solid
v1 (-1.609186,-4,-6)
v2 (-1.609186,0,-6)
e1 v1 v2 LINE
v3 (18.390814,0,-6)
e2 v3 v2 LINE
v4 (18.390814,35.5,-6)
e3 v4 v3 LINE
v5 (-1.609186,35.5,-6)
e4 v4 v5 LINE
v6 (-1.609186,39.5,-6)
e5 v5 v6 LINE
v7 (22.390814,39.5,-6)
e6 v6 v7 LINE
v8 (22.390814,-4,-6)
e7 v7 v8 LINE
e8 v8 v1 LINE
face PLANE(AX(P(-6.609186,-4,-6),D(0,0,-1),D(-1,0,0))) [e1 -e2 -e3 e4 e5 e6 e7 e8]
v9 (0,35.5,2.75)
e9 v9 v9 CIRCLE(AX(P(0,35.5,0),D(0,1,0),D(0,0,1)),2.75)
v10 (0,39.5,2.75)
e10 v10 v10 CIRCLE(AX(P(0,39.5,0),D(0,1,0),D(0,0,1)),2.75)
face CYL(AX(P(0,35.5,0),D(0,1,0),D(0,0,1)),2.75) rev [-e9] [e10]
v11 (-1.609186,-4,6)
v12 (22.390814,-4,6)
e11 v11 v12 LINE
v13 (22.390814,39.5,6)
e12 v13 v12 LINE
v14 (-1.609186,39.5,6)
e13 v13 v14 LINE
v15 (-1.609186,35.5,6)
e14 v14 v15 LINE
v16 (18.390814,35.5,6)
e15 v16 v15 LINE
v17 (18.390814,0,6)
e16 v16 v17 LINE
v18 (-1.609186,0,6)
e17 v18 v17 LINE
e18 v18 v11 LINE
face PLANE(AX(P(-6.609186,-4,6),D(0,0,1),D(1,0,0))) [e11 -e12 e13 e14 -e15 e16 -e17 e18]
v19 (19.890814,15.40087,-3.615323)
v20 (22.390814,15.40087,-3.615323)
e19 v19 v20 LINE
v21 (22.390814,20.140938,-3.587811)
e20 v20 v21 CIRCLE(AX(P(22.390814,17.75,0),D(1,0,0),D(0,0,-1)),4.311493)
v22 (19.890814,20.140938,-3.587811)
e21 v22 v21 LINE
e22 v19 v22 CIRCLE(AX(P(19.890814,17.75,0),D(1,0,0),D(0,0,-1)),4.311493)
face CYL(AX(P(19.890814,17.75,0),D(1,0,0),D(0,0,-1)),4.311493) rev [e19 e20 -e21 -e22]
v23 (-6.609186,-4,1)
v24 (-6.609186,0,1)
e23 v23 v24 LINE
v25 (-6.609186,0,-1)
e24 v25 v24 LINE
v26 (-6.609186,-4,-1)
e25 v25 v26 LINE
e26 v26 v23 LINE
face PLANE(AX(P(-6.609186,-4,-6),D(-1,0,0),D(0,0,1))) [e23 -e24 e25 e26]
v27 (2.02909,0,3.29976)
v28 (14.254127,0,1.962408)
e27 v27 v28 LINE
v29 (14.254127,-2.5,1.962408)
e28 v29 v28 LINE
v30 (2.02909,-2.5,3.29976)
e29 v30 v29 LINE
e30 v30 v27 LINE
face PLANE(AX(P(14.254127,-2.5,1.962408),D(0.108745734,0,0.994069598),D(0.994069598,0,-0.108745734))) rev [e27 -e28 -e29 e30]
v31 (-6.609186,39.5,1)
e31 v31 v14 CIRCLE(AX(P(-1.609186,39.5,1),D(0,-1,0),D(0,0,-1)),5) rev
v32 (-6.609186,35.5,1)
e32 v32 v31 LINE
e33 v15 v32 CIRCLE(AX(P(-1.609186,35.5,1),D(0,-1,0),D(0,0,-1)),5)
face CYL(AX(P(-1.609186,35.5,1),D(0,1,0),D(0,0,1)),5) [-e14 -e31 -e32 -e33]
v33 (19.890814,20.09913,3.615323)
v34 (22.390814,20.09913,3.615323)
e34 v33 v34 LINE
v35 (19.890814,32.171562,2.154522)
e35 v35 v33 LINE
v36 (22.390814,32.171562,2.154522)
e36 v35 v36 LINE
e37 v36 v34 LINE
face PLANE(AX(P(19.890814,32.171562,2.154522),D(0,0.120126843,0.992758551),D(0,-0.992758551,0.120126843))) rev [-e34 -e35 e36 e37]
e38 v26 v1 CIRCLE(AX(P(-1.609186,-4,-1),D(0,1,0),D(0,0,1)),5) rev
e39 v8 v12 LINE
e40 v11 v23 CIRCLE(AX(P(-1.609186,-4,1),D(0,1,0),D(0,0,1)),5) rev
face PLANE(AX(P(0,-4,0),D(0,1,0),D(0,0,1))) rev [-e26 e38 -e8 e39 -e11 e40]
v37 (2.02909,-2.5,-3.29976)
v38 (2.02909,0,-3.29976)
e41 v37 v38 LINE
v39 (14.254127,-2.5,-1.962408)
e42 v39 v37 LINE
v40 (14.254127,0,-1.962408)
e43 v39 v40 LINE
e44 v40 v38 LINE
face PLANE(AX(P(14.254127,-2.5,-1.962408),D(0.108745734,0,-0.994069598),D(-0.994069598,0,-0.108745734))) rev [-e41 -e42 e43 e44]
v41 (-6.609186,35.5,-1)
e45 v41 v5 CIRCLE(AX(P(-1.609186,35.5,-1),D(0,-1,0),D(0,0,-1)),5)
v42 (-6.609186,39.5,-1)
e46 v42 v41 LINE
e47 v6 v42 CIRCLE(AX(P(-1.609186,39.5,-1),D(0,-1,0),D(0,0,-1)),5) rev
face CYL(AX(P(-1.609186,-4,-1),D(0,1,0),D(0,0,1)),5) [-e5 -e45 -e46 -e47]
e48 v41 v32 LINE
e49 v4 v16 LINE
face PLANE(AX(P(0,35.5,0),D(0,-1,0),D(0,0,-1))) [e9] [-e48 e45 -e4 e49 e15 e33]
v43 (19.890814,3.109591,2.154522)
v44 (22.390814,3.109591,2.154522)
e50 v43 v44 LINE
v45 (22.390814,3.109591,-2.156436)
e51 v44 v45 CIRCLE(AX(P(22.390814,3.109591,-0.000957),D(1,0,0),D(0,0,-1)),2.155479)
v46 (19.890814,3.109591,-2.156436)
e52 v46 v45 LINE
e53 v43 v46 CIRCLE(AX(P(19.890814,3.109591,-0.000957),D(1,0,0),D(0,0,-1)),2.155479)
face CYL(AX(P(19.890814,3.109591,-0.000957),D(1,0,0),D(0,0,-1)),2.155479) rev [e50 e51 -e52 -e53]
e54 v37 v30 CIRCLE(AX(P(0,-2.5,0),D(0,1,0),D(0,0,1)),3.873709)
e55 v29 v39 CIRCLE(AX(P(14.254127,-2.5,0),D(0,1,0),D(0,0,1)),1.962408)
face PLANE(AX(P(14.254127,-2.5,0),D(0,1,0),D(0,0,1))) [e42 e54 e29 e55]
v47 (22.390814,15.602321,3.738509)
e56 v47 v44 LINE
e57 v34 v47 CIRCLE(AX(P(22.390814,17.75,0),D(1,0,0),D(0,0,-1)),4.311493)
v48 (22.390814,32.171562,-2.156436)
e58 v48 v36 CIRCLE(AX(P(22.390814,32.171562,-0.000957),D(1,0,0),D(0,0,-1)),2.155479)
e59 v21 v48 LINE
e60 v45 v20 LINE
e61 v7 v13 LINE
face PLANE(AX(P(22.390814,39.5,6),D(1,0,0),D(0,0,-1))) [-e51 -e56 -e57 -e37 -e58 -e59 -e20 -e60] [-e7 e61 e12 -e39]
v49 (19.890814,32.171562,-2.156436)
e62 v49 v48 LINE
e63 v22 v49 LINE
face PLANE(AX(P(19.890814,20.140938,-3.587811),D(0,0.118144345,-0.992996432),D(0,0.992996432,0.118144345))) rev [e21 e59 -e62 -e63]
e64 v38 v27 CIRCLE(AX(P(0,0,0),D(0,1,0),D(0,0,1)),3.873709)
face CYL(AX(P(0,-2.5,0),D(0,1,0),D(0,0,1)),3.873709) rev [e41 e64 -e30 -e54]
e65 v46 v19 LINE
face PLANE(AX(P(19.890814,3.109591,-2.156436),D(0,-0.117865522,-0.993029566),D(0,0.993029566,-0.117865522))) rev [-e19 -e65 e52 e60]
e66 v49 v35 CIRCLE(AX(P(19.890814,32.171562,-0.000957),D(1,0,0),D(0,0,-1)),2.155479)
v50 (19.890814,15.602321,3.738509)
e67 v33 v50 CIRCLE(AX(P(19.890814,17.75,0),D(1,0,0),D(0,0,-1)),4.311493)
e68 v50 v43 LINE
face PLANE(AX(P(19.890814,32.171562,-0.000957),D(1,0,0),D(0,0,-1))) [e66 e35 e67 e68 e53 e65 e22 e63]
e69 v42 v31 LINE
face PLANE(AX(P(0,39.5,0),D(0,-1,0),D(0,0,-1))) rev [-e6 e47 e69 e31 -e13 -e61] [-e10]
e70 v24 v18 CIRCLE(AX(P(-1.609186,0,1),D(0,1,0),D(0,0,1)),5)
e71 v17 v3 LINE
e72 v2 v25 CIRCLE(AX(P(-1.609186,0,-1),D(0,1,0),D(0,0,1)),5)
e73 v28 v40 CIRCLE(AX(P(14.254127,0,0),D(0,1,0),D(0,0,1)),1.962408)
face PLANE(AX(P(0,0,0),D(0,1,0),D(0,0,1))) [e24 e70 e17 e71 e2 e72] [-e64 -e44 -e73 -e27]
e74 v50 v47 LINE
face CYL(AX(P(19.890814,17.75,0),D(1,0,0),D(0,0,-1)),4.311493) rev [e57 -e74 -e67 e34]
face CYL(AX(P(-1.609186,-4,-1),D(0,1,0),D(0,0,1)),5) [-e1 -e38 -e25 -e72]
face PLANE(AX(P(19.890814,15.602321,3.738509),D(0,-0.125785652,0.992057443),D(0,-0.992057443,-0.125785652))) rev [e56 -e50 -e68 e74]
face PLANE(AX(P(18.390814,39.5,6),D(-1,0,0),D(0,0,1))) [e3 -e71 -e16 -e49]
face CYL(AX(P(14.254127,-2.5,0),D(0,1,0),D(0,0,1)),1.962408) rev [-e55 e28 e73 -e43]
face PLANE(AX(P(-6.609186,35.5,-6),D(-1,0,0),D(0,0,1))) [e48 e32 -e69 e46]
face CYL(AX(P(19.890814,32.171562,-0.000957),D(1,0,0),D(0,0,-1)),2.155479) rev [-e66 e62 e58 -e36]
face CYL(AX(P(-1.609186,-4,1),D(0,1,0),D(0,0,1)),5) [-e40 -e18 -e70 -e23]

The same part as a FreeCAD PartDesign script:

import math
import FreeCAD as App
import Part
import Sketcher
from FreeCAD import Vector
Q = App.Units.Quantity


def edges_at(feature, points):
    """Names of the edges that pass closest to the given points."""
    edges = feature.Shape.Edges
    near = lambda p: min(range(len(edges)), key=lambda i: edges[i].distToShape(Part.Vertex(*p))[0])
    return sorted({f"Edge{near(p) + 1}" for p in points})


def add_polygon(sketch, points):
    """Adds a closed chain of lines whose ends are joined by coincident constraints."""
    first, n = sketch.GeometryCount, len(points)
    for a, b in zip(points, points[1:] + points[:1]):
        sketch.addGeometry(Part.LineSegment(App.Vector(*a, 0), App.Vector(*b, 0)), False)
    for i in range(n):
        sketch.addConstraint(Sketcher.Constraint("Coincident", first + i, 2, first + (i + 1) % n, 1))

doc = App.newDocument("Part")
body = doc.addObject("PartDesign::Body", "Body")

sketch1 = body.newObject("Sketcher::SketchObject", "Sketch")
sketch1.AttachmentSupport = (doc.getObject("XZ_Plane"), [""])
sketch1.MapMode = "FlatFace"
add_polygon(sketch1, [(-7, -6), (-7, 6), (18, 6), (18, -6)])
sketch1.addConstraint([
    Sketcher.Constraint("Vertical", 0),
    Sketcher.Constraint("Horizontal", 1),
    Sketcher.Constraint("Vertical", 2),
    Sketcher.Constraint("Horizontal", 3),
    Sketcher.Constraint("DistanceX", 1, 1, 1, 2, Q("25 mm")),
    Sketcher.Constraint("DistanceY", 0, 1, 0, 2, Q("12 mm")),
    Sketcher.Constraint("DistanceY", -1, 1, 0, 2, Q("6 mm")),
    Sketcher.Constraint("DistanceX", 0, 2, -1, 1, Q("6.609186 mm")),
])
pad1 = body.newObject("PartDesign::Pad", "Pad")
pad1.Profile = sketch1
pad1.Length = 4

sketch2 = body.newObject("Sketcher::SketchObject", "Sketch001")
sketch2.AttachmentSupport = (doc.getObject("XZ_Plane"), [""])
sketch2.MapMode = "FlatFace"
sketch2.addGeometry([
    Part.LineSegment(Vector(14.3, -2, 0), Vector(2, -3.3, 0)),
    Part.ArcOfCircle(Part.Circle(Vector(0, 0, 0), Vector(0, 0, 1), 3.9), math.radians(58), math.radians(302)),
    Part.LineSegment(Vector(2, 3.3, 0), Vector(14.3, 2, 0)),
    Part.ArcOfCircle(Part.Circle(Vector(14.3, 0, 0), Vector(0, 0, 1), 2), math.radians(-90), math.radians(90)),
], False)
sketch2.addConstraint([
    Sketcher.Constraint("Coincident", 0, 2, 1, 2),
    Sketcher.Constraint("Coincident", 1, 1, 2, 1),
    Sketcher.Constraint("Coincident", 2, 2, 3, 2),
    Sketcher.Constraint("Coincident", 3, 1, 0, 1),
    Sketcher.Constraint("Coincident", 1, 3, -1, 1),
    Sketcher.Constraint("Symmetric", 2, 2, 3, 1, -1),
    Sketcher.Constraint("Vertical", 0, 2, 1, 1),
    Sketcher.Constraint("Vertical", 3, 3, 2, 2),
    Sketcher.Constraint("Radius", 1, Q("3.873709 mm")),
    Sketcher.Constraint("Radius", 3, Q("1.962408 mm")),
    Sketcher.Constraint("Distance", 0, Q("12.297968 mm")),
    Sketcher.Constraint("DistanceX", -1, 1, 0, 2, Q("2.02909 mm")),
])
pocket1 = body.newObject("PartDesign::Pocket", "Pocket")
pocket1.Profile = sketch2
pocket1.Length = 2.5
pocket1.Reversed = True

sketch3 = body.newObject("Sketcher::SketchObject", "Sketch002")
sketch3.AttachmentSupport = (doc.getObject("XZ_Plane"), [""])
sketch3.MapMode = "FlatFace"
sketch3.AttachmentOffset = App.Placement(Vector(0, 0, 4), App.Rotation())
add_polygon(sketch3, [(18.4, 6), (18.4, -6), (22.4, -6), (22.4, 6)])
sketch3.addConstraint([
    Sketcher.Constraint("Vertical", 0),
    Sketcher.Constraint("Horizontal", 1),
    Sketcher.Constraint("Vertical", 2),
    Sketcher.Constraint("Horizontal", 3),
    Sketcher.Constraint("DistanceX", 1, 1, 1, 2, Q("4 mm")),
    Sketcher.Constraint("DistanceY", 0, 2, 0, 1, Q("12 mm")),
    Sketcher.Constraint("DistanceY", 0, 2, -1, 1, Q("6 mm")),
    Sketcher.Constraint("DistanceX", -1, 1, 0, 2, Q("18.390814 mm")),
])
pad2 = body.newObject("PartDesign::Pad", "Pad001")
pad2.Profile = sketch3
pad2.Length = 43.5
pad2.Reversed = True

sketch4 = body.newObject("Sketcher::SketchObject", "Sketch003")
sketch4.AttachmentSupport = (doc.getObject("XZ_Plane"), [""])
sketch4.MapMode = "FlatFace"
sketch4.AttachmentOffset = App.Placement(Vector(0, 0, -39.5), App.Rotation())
add_polygon(sketch4, [(-7, -6), (-7, 6), (18, 6), (18, -6)])
sketch4.addConstraint([
    Sketcher.Constraint("Vertical", 0),
    Sketcher.Constraint("Horizontal", 1),
    Sketcher.Constraint("Vertical", 2),
    Sketcher.Constraint("Horizontal", 3),
    Sketcher.Constraint("DistanceX", 1, 1, 1, 2, Q("25 mm")),
    Sketcher.Constraint("DistanceY", 0, 1, 0, 2, Q("12 mm")),
    Sketcher.Constraint("DistanceY", -1, 1, 0, 2, Q("6 mm")),
    Sketcher.Constraint("DistanceX", 0, 2, -1, 1, Q("6.609186 mm")),
])
pad3 = body.newObject("PartDesign::Pad", "Pad002")
pad3.Profile = sketch4
pad3.Length = 4

sketch5 = body.newObject("Sketcher::SketchObject", "Sketch004")
sketch5.AttachmentSupport = (doc.getObject("XZ_Plane"), [""])
sketch5.MapMode = "FlatFace"
sketch5.AttachmentOffset = App.Placement(Vector(0, 0, -39.5), App.Rotation())
sketch5.addGeometry(Part.Circle(Vector(0, 0, 0), Vector(0, 0, 1), 2.8), False)
sketch5.addConstraint([
    Sketcher.Constraint("Coincident", 0, 3, -1, 1),
    Sketcher.Constraint("Diameter", 0, Q("5.5 mm")),
])
pocket2 = body.newObject("PartDesign::Pocket", "Pocket001")
pocket2.Profile = sketch5
pocket2.Length = 4
pocket2.Reversed = True
doc.recompute()

fillet = body.newObject("PartDesign::Fillet", "Fillet")
fillet.Base = (pocket2, edges_at(pocket2, [
    (-6.609, 37.5, 6),
    (-6.609, 37.5, -6),
    (-6.609, -2, -6),
    (-6.609, -2, 6),
]))
fillet.Radius = 5

sketch6 = body.newObject("Sketcher::SketchObject", "Sketch005")
sketch6.AttachmentSupport = (doc.getObject("YZ_Plane"), [""])
sketch6.MapMode = "FlatFace"
sketch6.AttachmentOffset = App.Placement(Vector(0, 0, 22.390814), App.Rotation())
sketch6.addGeometry([
    Part.LineSegment(Vector(32.2, 2.2, 0), Vector(20.1, 3.6, 0)),
    Part.ArcOfCircle(Part.Circle(Vector(17.8, 0, 0), Vector(0, 0, 1), 4.3), math.radians(57), math.radians(120)),
    Part.LineSegment(Vector(15.6, 3.7, 0), Vector(3.1, 2.2, 0)),
    Part.ArcOfCircle(Part.Circle(Vector(3.1, 0, 0), Vector(0, 0, 1), 2.2), math.radians(90), math.radians(270)),
    Part.LineSegment(Vector(3.1, -2.2, 0), Vector(15.4, -3.6, 0)),
    Part.ArcOfCircle(Part.Circle(Vector(17.7, 0, 0), Vector(0, 0, 1), 4.3), math.radians(-123), math.radians(-56)),
    Part.LineSegment(Vector(20.1, -3.6, 0), Vector(32.2, -2.2, 0)),
    Part.ArcOfCircle(Part.Circle(Vector(32.2, 0, 0), Vector(0, 0, 1), 2.2), math.radians(-90), math.radians(90)),
], False)
sketch6.addConstraint([
    Sketcher.Constraint("Coincident", 0, 2, 1, 1),
    Sketcher.Constraint("Coincident", 1, 2, 2, 1),
    Sketcher.Constraint("Coincident", 2, 2, 3, 1),
    Sketcher.Constraint("Coincident", 3, 2, 4, 1),
    Sketcher.Constraint("Coincident", 4, 2, 5, 1),
    Sketcher.Constraint("Coincident", 5, 2, 6, 1),
    Sketcher.Constraint("Coincident", 6, 2, 7, 1),
    Sketcher.Constraint("Coincident", 7, 2, 0, 1),
    Sketcher.Constraint("Coincident", 5, 3, 1, 3),
    Sketcher.Constraint("Equal", 1, 5),
    Sketcher.Constraint("Equal", 3, 7),
    Sketcher.Constraint("PointOnObject", 1, 3, -1),
    Sketcher.Constraint("Horizontal", 3, 3, 7, 3),
    Sketcher.Constraint("Vertical", 3, 3, 2, 2),
    Sketcher.Constraint("Vertical", 2, 2, 3, 2),
    Sketcher.Constraint("Vertical", 7, 3, 6, 2),
    Sketcher.Constraint("Vertical", 6, 2, 7, 2),
    Sketcher.Constraint("DistanceX", -1, 1, 1, 3, Q("17.75 mm")),
    Sketcher.Constraint("Radius", 3, Q("2.155479 mm")),
    Sketcher.Constraint("Radius", 1, Q("4.311493 mm")),
    Sketcher.Constraint("DistanceY", 2, 2, 0, 2, Q("1.460801 mm")),
    Sketcher.Constraint("Distance", 0, Q("12.160491 mm")),
    Sketcher.Constraint("Distance", 2, Q("12.592749 mm")),
    Sketcher.Constraint("DistanceX", -1, 1, 3, 3, Q("3.109591 mm")),
    Sketcher.Constraint("DistanceX", -1, 1, 7, 3, Q("32.171562 mm")),
    Sketcher.Constraint("DistanceX", -1, 1, 4, 2, Q("15.40087 mm")),
    Sketcher.Constraint("DistanceX", -1, 1, 5, 2, Q("20.140938 mm")),
])
pocket3 = body.newObject("PartDesign::Pocket", "Pocket002")
pocket3.Profile = sketch6
pocket3.Length = 2.5

doc.recompute()
